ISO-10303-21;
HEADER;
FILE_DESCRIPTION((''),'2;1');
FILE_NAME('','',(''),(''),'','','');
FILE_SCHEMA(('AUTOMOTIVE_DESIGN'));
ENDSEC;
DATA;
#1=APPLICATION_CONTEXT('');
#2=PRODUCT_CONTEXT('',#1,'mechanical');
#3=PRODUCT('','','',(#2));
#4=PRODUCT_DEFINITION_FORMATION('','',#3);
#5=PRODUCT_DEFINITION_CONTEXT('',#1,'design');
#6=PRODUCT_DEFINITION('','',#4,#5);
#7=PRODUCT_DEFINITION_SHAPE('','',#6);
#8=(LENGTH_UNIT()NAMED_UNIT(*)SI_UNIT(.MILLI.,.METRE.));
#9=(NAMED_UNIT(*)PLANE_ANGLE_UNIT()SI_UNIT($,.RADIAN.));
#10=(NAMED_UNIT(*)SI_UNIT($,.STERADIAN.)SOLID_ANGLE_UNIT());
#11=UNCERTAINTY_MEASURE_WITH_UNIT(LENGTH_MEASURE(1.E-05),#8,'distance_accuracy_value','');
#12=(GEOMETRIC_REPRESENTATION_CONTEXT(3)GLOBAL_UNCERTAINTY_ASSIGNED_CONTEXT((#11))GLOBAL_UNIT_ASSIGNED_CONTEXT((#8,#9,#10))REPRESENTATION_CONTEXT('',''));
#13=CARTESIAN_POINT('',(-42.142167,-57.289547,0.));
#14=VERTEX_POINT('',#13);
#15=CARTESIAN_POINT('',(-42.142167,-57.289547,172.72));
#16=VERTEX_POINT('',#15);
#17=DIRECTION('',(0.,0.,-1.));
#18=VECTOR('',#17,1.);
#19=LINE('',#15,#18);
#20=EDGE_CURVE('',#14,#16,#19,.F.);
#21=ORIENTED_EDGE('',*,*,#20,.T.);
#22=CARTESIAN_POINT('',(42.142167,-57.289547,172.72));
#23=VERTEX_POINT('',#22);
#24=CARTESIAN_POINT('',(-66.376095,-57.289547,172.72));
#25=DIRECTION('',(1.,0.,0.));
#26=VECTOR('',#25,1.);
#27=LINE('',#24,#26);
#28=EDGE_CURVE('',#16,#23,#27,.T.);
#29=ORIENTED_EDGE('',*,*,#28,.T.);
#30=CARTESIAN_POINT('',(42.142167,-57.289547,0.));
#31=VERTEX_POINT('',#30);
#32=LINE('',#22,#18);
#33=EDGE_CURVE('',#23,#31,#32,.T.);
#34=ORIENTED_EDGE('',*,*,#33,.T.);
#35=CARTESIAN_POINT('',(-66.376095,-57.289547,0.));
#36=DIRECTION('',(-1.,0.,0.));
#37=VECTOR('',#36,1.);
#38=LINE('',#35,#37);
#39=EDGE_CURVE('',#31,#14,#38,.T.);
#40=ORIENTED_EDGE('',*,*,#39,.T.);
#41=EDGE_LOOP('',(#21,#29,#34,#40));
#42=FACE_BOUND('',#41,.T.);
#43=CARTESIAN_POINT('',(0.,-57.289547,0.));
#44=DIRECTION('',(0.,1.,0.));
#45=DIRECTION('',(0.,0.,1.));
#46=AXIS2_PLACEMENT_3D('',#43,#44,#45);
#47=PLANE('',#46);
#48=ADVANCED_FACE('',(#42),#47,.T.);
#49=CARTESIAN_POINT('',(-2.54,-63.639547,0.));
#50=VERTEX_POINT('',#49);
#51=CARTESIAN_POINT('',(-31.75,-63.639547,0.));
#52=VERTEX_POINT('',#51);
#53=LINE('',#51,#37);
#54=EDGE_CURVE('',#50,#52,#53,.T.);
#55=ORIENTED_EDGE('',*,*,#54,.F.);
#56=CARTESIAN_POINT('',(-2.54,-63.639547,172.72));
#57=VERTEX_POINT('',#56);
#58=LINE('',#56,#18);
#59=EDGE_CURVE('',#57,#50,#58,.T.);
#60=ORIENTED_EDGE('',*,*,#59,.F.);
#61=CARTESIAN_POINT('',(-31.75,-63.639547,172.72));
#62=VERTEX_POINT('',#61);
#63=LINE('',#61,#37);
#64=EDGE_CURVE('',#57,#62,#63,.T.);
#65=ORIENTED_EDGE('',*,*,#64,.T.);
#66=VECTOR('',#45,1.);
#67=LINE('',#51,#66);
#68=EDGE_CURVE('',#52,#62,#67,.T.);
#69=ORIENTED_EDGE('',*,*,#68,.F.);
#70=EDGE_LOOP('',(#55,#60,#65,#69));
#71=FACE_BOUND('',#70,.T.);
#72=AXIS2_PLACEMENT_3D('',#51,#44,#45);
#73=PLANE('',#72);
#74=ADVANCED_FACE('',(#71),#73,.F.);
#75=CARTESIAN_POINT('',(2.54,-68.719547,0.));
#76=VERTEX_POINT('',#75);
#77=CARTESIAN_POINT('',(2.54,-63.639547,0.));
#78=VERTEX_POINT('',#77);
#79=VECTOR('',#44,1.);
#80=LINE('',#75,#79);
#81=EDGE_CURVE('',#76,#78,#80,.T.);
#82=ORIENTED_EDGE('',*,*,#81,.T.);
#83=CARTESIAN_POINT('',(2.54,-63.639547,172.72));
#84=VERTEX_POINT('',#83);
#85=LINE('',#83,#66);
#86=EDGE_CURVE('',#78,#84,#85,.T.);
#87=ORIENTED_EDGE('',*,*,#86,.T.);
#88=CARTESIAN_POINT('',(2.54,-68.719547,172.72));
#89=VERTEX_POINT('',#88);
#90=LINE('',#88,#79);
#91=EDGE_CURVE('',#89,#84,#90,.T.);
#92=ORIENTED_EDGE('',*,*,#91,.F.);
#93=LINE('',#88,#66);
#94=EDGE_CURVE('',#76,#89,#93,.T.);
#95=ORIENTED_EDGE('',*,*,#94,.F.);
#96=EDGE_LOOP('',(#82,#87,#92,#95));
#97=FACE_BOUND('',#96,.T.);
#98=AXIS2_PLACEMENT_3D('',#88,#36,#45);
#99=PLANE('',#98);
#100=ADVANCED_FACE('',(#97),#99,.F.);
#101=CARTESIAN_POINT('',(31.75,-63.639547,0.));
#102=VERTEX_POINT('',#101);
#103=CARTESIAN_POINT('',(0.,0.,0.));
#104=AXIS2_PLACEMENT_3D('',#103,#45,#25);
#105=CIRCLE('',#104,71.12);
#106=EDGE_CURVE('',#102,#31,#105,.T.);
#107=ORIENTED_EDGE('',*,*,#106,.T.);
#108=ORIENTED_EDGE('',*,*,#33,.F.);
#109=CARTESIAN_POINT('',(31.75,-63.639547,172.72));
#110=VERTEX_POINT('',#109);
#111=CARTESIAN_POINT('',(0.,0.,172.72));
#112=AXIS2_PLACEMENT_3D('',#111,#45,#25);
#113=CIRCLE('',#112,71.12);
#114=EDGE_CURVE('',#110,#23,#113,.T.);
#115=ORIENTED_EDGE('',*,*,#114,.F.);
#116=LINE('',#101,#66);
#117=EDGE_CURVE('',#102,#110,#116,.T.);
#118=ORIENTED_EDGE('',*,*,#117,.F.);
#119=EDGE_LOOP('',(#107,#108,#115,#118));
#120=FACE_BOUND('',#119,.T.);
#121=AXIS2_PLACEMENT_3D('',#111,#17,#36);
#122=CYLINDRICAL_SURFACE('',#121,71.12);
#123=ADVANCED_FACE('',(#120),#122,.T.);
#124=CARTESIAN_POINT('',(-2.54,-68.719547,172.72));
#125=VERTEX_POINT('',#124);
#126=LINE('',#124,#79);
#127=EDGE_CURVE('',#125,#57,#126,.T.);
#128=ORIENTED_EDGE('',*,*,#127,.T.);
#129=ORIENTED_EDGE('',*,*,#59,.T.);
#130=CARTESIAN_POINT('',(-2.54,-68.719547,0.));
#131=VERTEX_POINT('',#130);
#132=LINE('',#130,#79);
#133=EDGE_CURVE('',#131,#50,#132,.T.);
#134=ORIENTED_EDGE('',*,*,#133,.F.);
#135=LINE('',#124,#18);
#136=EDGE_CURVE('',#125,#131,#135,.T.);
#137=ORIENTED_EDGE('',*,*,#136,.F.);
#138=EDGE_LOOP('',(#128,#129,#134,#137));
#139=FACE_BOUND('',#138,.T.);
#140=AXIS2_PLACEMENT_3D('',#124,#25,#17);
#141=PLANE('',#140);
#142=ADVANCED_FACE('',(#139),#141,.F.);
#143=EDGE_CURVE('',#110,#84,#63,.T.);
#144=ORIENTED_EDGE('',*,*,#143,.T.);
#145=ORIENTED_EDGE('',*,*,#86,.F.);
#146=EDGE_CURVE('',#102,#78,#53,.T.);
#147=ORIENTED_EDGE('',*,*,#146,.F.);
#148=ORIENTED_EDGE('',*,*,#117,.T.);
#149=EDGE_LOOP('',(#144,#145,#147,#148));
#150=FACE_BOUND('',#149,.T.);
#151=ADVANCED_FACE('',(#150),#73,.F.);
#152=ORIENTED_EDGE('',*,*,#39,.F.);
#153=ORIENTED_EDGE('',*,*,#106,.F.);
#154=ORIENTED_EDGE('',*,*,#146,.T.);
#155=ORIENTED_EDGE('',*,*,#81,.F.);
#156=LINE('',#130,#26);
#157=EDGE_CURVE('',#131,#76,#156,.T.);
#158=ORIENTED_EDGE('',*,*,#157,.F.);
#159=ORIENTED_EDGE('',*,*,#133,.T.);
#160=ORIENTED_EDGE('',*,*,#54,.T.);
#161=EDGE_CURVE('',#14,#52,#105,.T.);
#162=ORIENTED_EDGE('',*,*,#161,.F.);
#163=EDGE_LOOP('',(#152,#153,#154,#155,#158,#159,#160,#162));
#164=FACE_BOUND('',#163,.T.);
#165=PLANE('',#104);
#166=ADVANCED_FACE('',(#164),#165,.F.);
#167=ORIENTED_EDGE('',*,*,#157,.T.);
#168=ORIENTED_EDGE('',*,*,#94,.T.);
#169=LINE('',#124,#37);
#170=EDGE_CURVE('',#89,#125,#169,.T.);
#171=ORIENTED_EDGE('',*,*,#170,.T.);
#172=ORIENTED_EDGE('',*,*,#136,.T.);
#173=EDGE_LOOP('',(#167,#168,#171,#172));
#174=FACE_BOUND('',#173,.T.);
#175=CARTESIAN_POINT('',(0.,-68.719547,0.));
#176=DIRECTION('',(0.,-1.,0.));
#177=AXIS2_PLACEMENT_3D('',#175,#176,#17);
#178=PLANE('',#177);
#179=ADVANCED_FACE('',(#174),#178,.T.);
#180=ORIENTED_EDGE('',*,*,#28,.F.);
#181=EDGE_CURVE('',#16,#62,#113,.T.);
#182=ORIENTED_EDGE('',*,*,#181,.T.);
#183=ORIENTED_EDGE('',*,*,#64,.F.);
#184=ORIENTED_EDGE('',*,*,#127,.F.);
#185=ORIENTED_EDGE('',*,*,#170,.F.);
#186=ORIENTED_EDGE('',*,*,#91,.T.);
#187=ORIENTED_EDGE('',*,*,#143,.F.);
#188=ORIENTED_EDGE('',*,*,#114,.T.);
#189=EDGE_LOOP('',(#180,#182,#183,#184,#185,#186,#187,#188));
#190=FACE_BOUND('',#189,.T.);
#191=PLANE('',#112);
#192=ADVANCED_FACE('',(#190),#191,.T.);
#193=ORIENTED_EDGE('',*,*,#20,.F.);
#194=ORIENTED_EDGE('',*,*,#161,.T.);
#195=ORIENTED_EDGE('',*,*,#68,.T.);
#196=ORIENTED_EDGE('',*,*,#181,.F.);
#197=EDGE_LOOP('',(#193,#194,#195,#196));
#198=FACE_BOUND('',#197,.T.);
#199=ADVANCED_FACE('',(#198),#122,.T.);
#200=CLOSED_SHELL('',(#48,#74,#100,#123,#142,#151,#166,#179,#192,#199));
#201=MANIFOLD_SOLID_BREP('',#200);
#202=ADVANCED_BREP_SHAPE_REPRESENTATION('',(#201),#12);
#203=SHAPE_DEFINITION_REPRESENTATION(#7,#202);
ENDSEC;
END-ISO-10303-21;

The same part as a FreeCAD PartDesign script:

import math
import FreeCAD as App
import Part
import Sketcher
Q = App.Units.Quantity

doc = App.newDocument("Part")
params = doc.addObject("Spreadsheet::Sheet", "Params")
for row, (alias, value) in enumerate([
    ("sketch1_diameter", "5.6 in"),
    ("pad1_length", "6.8 in"),
    ("sketch2_radius", "2.8 in"),
    ("sketch2_width", "2.5 in"),
    ("sketch3_radius", "2.8 in"),
    ("sketch4_height", "6.8 in"),
    ("pocket3_length", "1.25 in"),
    ("sketch5_width", "0.2 in"),
    ("sketch5_height", "6.8 in"),
    ("pad2_length", "0.2 in"),
], start=1):
    params.set(f"A{row}", alias)
    params.set(f"B{row}", "=" + value)
    params.setAlias(f"B{row}", alias)

body = doc.addObject("PartDesign::Body", "Body")

sketch1 = doc.addObject("Sketcher::SketchObject", "Sketch")
body.addObject(sketch1)
sketch1.AttachmentSupport = (doc.XY_Plane, [""])
sketch1.MapMode = "FlatFace"
sketch1.addGeometry(Part.Circle(App.Vector(0, 0, 0), App.Vector(0, 0, 1), 71), False)
sketch1.addConstraint([
    Sketcher.Constraint("Coincident", 0, 3, -1, 1),
    Sketcher.Constraint("Diameter", 0, Q("5.6 in")),
])
sketch1.setExpression("Constraints[1]", "Params.sketch1_diameter")
pad1 = doc.addObject("PartDesign::Pad", "Pad")
body.addObject(pad1)
pad1.Profile = sketch1
pad1.setExpression("Length", "Params.pad1_length")

sketch2 = doc.addObject("Sketcher::SketchObject", "Sketch001")
body.addObject(sketch2)
sketch2.AttachmentSupport = (doc.XY_Plane, [""])
sketch2.MapMode = "FlatFace"
sketch2.AttachmentOffset = App.Placement(App.Vector(0, 0, 6.8 * 25.4), App.Rotation())
sketch2.addGeometry([
    Part.LineSegment(App.Vector(32, -64, 0), App.Vector(-32, -64, 0)),
    Part.ArcOfCircle(Part.Circle(App.Vector(0, 0, 0), App.Vector(0, 0, 1), 71), math.radians(-117), math.radians(-63)),
], False)
sketch2.addConstraint([
    Sketcher.Constraint("Coincident", 0, 1, 1, 2),
    Sketcher.Constraint("Coincident", 1, 1, 0, 2),
    Sketcher.Constraint("Horizontal", 0),
    Sketcher.Constraint("Coincident", 1, 3, -1, 1),
    Sketcher.Constraint("Radius", 1, Q("2.8 in")),
    Sketcher.Constraint("DistanceX", 0, 2, 0, 1, Q("2.5 in")),
])
sketch2.setExpression("Constraints[4]", "Params.sketch2_radius")
sketch2.setExpression("Constraints[5]", "Params.sketch2_width")
pocket1 = doc.addObject("PartDesign::Pocket", "Pocket")
body.addObject(pocket1)
pocket1.Profile = sketch2
pocket1.Type = "ThroughAll"

sketch3 = doc.addObject("Sketcher::SketchObject", "Sketch002")
body.addObject(sketch3)
sketch3.AttachmentSupport = (doc.XY_Plane, [""])
sketch3.MapMode = "FlatFace"
sketch3.AttachmentOffset = App.Placement(App.Vector(0, 0, 6.8 * 25.4), App.Rotation())
sketch3.addGeometry([
    Part.LineSegment(App.Vector(-66, -26, 0), App.Vector(66, -26, 0)),
    Part.ArcOfCircle(Part.Circle(App.Vector(0, 0, 0), App.Vector(0, 0, 1), 71), math.radians(-21), math.radians(201)),
], False)
sketch3.addConstraint([
    Sketcher.Constraint("Coincident", 0, 1, 1, 2),
    Sketcher.Constraint("Coincident", 1, 1, 0, 2),
    Sketcher.Constraint("Horizontal", 0),
    Sketcher.Constraint("Coincident", 1, 3, -1, 1),
    Sketcher.Constraint("Radius", 1, Q("2.8 in")),
    Sketcher.Constraint("DistanceX", 0, 1, 0, 2, 132.75219),
])
sketch3.setExpression("Constraints[4]", "Params.sketch3_radius")
pocket2 = doc.addObject("PartDesign::Pocket", "Pocket001")
body.addObject(pocket2)
pocket2.Profile = sketch3
pocket2.Type = "ThroughAll"

sketch4 = doc.addObject("Sketcher::SketchObject", "Sketch003")
body.addObject(sketch4)
sketch4.AttachmentSupport = (doc.XZ_Plane, [""])
sketch4.MapMode = "FlatFace"
sketch4.AttachmentOffset = App.Placement(App.Vector(0, 0, 25.539547), App.Rotation())
sketch4.addGeometry([
    Part.LineSegment(App.Vector(-66, 0, 0), App.Vector(-66, 173, 0)),
    Part.LineSegment(App.Vector(-66, 173, 0), App.Vector(66, 173, 0)),
    Part.LineSegment(App.Vector(66, 173, 0), App.Vector(66, 0, 0)),
    Part.LineSegment(App.Vector(66, 0, 0), App.Vector(-66, 0, 0)),
], False)
sketch4.addConstraint([
    Sketcher.Constraint("Coincident", 0, 2, 1, 1),
    Sketcher.Constraint("Coincident", 1, 2, 2, 1),
    Sketcher.Constraint("Coincident", 2, 2, 3, 1),
    Sketcher.Constraint("Coincident", 3, 2, 0, 1),
    Sketcher.Constraint("Vertical", 0),
    Sketcher.Constraint("Horizontal", 1),
    Sketcher.Constraint("Vertical", 2),
    Sketcher.Constraint("Horizontal", 3),
    Sketcher.Constraint("Symmetric", 2, 2, 3, 2, -1, 1),
    Sketcher.Constraint("DistanceY", 0, 1, 0, 2, Q("6.8 in")),
    Sketcher.Constraint("DistanceX", 1, 1, 1, 2, 132.75219),
])
sketch4.setExpression("Constraints[9]", "Params.sketch4_height")
pocket3 = doc.addObject("PartDesign::Pocket", "Pocket002")
body.addObject(pocket3)
pocket3.Profile = sketch4
pocket3.setExpression("Length", "Params.pocket3_length")
pocket3.Reversed = True

sketch5 = doc.addObject("Sketcher::SketchObject", "Sketch004")
body.addObject(sketch5)
sketch5.AttachmentSupport = (doc.XZ_Plane, [""])
sketch5.MapMode = "FlatFace"
sketch5.AttachmentOffset = App.Placement(App.Vector(0, 0, 63.639547), App.Rotation())
sketch5.addGeometry([
    Part.LineSegment(App.Vector(-3, 173, 0), App.Vector(-3, 0, 0)),
    Part.LineSegment(App.Vector(-3, 0, 0), App.Vector(3, 0, 0)),
    Part.LineSegment(App.Vector(3, 0, 0), App.Vector(3, 173, 0)),
    Part.LineSegment(App.Vector(3, 173, 0), App.Vector(-3, 173, 0)),
], False)
sketch5.addConstraint([
    Sketcher.Constraint("Coincident", 0, 2, 1, 1),
    Sketcher.Constraint("Coincident", 1, 2, 2, 1),
    Sketcher.Constraint("Coincident", 2, 2, 3, 1),
    Sketcher.Constraint("Coincident", 3, 2, 0, 1),
    Sketcher.Constraint("Vertical", 0),
    Sketcher.Constraint("Horizontal", 1),
    Sketcher.Constraint("Vertical", 2),
    Sketcher.Constraint("Horizontal", 3),
    Sketcher.Constraint("Symmetric", 0, 2, 1, 2, -1, 1),
    Sketcher.Constraint("DistanceX", 1, 1, 1, 2, Q("0.2 in")),
    Sketcher.Constraint("DistanceY", 0, 2, 0, 1, Q("6.8 in")),
])
sketch5.setExpression("Constraints[9]", "Params.sketch5_width")
sketch5.setExpression("Constraints[10]", "Params.sketch5_height")
pad2 = doc.addObject("PartDesign::Pad", "Pad001")
body.addObject(pad2)
pad2.Profile = sketch5
pad2.setExpression("Length", "Params.pad2_length")

doc.recompute()
